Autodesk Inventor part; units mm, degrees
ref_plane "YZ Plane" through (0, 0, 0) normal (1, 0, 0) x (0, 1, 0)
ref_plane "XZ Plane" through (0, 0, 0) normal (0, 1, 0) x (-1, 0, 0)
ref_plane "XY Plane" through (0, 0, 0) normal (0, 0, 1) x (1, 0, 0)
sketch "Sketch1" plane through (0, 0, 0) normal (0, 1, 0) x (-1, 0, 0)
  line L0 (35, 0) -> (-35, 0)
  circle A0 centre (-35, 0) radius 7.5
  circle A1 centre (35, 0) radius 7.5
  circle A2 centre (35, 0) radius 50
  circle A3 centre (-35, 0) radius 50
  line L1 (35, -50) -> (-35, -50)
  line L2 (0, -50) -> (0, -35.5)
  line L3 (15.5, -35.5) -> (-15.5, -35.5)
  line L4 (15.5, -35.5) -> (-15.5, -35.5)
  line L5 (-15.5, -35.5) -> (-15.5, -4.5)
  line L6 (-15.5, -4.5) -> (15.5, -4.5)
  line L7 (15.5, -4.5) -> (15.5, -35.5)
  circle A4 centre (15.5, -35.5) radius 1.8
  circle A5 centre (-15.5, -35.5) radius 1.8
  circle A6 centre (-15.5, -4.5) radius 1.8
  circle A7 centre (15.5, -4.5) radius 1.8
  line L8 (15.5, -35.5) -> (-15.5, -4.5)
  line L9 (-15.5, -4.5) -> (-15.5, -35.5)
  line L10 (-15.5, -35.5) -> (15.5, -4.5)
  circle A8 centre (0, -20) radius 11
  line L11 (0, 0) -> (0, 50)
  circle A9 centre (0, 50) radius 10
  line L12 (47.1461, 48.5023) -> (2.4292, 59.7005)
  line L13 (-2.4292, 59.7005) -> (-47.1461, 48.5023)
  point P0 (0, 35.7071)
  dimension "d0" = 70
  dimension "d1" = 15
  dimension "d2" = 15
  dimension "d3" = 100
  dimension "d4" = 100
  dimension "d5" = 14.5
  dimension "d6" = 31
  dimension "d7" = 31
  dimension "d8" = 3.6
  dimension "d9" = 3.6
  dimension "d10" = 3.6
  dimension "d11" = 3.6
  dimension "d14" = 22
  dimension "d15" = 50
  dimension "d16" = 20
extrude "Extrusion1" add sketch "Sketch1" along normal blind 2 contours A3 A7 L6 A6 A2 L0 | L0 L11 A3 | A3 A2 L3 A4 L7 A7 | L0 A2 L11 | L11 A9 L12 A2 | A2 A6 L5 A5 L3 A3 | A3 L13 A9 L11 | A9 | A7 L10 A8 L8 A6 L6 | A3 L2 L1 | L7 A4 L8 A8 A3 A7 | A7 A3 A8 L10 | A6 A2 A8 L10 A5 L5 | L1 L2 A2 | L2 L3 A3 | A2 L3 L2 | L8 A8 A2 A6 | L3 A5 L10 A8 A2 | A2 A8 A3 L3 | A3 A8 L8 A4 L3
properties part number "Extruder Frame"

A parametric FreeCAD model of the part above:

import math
import FreeCAD as App
import Part
import Sketcher
from FreeCAD import Vector

doc = App.newDocument("Part")
body = doc.addObject("PartDesign::Body", "Body")

# Sketch on XZ plane
sketch1 = body.newObject("Sketcher::SketchObject", "Sketch")
sketch1.AttachmentSupport = (doc.getObject("XZ_Plane"), [""])
sketch1.MapMode = "FlatFace"
sketch1.addGeometry([
    Part.LineSegment(Vector(-47.1, 48.5, 0), Vector(-2.4, 59.7, 0)),  # 0
    Part.ArcOfCircle(Part.Circle(Vector(0, 50, 0), Vector(0, 0, 1), 10), math.radians(76), math.radians(104)),  # 1
    Part.LineSegment(Vector(2.4, 59.7, 0), Vector(47.1, 48.5, 0)),  # 2
    Part.ArcOfCircle(Part.Circle(Vector(35, 0, 0), Vector(0, 0, 1), 50), math.radians(-90), math.radians(76)),  # 3
    Part.LineSegment(Vector(35, -50, 0), Vector(-35, -50, 0)),  # 4
    Part.ArcOfCircle(Part.Circle(Vector(-35, 0, 0), Vector(0, 0, 1), 50), math.radians(104), math.radians(270)),  # 5
    Part.Circle(Vector(-15.5, -4.5, 0), Vector(0, 0, 1), 1.8),  # 6
    Part.Circle(Vector(15.5, -4.5, 0), Vector(0, 0, 1), 1.8),  # 7
    Part.Circle(Vector(-15.5, -35.5, 0), Vector(0, 0, 1), 1.8),  # 8
    Part.Circle(Vector(-35, 0, 0), Vector(0, 0, 1), 7.5),  # 9
    Part.Circle(Vector(0, -20, 0), Vector(0, 0, 1), 11),  # 10
    Part.Circle(Vector(15.5, -35.5, 0), Vector(0, 0, 1), 1.8),  # 11
    Part.Circle(Vector(35, 0, 0), Vector(0, 0, 1), 7.5),  # 12
], False)
sketch1.addConstraint([
    Sketcher.Constraint("Tangent", 0, 2, 1, 2),
    Sketcher.Constraint("Tangent", 1, 1, 2, 1),
    Sketcher.Constraint("Tangent", 2, 2, 3, 2),
    Sketcher.Constraint("Tangent", 3, 1, 4, 1),
    Sketcher.Constraint("Tangent", 4, 2, 5, 2),
    Sketcher.Constraint("Tangent", 5, 1, 0, 1),
    Sketcher.Constraint("Horizontal", 4),
    Sketcher.Constraint("Coincident", 9, 3, 5, 3),
    Sketcher.Constraint("Coincident", 12, 3, 3, 3),
    Sketcher.Constraint("Equal", 3, 5),
    Sketcher.Constraint("Equal", 6, 7),
    Sketcher.Constraint("Equal", 7, 8),
    Sketcher.Constraint("Equal", 8, 11),
    Sketcher.Constraint("Equal", 9, 12),
    Sketcher.Constraint("Symmetric", 3, 3, 5, 3, -1, 1),
    Sketcher.Constraint("Symmetric", 6, 3, 7, 3, -2),
    Sketcher.Constraint("Symmetric", 8, 3, 11, 3, -2),
    Sketcher.Constraint("PointOnObject", 1, 3, -2),
    Sketcher.Constraint("PointOnObject", 10, 3, -2),
    Sketcher.Constraint("Vertical", 6, 3, 8, 3),
    Sketcher.Constraint("Diameter", 9, 15.0),
    Sketcher.Constraint("Diameter", 10, 22.0),
    Sketcher.Constraint("Radius", 1, 10.0),
    Sketcher.Constraint("Radius", 3, 50.0),
    Sketcher.Constraint("Diameter", 6, 3.6),
    Sketcher.Constraint("DistanceX", 4, 2, 4, 1, 70.0),
    Sketcher.Constraint("DistanceY", -1, 1, 1, 3, 50.0),
    Sketcher.Constraint("DistanceY", 10, 3, -1, 1, 20.0),
    Sketcher.Constraint("DistanceX", 6, 3, 7, 3, 31.0),
    Sketcher.Constraint("DistanceY", 8, 3, 6, 3, 31.0),
    Sketcher.Constraint("DistanceY", 3, 1, 11, 3, 14.5),
])
pad1 = body.newObject("PartDesign::Pad", "Pad")
pad1.Profile = sketch1
pad1.Length = 2
pad1.Reversed = True

doc.recompute()
